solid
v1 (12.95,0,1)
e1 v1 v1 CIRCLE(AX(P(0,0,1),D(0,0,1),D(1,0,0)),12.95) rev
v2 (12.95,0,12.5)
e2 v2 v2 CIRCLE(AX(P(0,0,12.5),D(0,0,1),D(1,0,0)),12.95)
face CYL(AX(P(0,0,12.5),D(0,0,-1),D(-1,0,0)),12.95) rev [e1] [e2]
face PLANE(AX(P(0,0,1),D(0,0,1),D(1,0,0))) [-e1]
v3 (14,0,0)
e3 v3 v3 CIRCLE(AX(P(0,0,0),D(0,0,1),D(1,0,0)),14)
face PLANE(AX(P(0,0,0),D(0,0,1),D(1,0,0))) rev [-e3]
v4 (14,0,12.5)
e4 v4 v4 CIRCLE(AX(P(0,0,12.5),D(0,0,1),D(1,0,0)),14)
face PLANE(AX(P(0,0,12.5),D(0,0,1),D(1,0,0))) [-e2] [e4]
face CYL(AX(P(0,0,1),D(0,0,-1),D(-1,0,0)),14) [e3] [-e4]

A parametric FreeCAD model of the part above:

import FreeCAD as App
import Part
import Sketcher
from FreeCAD import Vector
Q = App.Units.Quantity

doc = App.newDocument("Part")
body = doc.addObject("PartDesign::Body", "Body")

sketch1 = body.newObject("Sketcher::SketchObject", "Sketch")
sketch1.AttachmentSupport = (doc.getObject("XY_Plane"), [""])
sketch1.MapMode = "FlatFace"
sketch1.addGeometry(Part.Circle(Vector(0, 0, 0), Vector(0, 0, 1), 14), False)
sketch1.addConstraint([
    Sketcher.Constraint("Coincident", 0, 3, -1, 1),
    Sketcher.Constraint("Diameter", 0, Q("28 mm")),
])
pad1 = body.newObject("PartDesign::Pad", "Pad")
pad1.Profile = sketch1
pad1.Length = 1

sketch2 = body.newObject("Sketcher::SketchObject", "Sketch001")
sketch2.AttachmentSupport = (doc.getObject("XY_Plane"), [""])
sketch2.MapMode = "FlatFace"
sketch2.AttachmentOffset = App.Placement(Vector(0, 0, 1), App.Rotation())
sketch2.addGeometry([
    Part.Circle(Vector(0, 0, 0), Vector(0, 0, 1), 14),
    Part.Circle(Vector(0, 0, 0), Vector(0, 0, 1), 13),
], False)
sketch2.addConstraint([
    Sketcher.Constraint("Coincident", 0, 3, -1, 1),
    Sketcher.Constraint("Coincident", 1, 3, -1, 1),
    Sketcher.Constraint("Diameter", 0, Q("28 mm")),
    Sketcher.Constraint("Diameter", 1, Q("25.9 mm")),
])
pad2 = body.newObject("PartDesign::Pad", "Pad001")
pad2.Profile = sketch2
pad2.Length = 11.5

doc.recompute()
